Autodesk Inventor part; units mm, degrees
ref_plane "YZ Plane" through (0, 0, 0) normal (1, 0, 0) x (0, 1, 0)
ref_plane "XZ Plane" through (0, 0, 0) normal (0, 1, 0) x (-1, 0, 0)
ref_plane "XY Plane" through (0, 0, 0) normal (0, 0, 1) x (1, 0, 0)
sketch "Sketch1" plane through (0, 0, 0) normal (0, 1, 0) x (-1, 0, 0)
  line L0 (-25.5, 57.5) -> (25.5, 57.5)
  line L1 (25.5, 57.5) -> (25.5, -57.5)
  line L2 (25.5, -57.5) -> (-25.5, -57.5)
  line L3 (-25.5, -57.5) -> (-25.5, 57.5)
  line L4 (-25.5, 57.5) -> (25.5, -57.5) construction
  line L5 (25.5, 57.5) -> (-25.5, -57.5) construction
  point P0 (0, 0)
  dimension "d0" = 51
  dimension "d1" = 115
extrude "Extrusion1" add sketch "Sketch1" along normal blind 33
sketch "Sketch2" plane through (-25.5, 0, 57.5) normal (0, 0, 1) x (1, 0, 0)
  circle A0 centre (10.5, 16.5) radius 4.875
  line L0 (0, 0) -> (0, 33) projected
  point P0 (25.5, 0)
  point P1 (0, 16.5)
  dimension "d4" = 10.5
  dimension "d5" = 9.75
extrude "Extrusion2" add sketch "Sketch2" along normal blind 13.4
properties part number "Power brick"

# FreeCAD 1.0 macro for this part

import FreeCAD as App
import Part
import Sketcher

V = App.Vector

doc = App.newDocument("Part")
params = doc.addObject("Spreadsheet::Sheet", "Params")
for row, (alias, value) in enumerate([
    ("sketch1_width", "51 mm"),
    ("sketch1_height", "115 mm"),
    ("pad1_length", "33 mm"),
    ("sketch2_diameter", "9.75 mm"),
    ("pad2_length", "13.4 mm"),
], start=1):
    params.set(f"A{row}", alias)
    params.set(f"B{row}", "=" + value)
    params.setAlias(f"B{row}", alias)

body = doc.addObject("PartDesign::Body", "Body")

sketch1 = body.newObject("Sketcher::SketchObject", "Sketch")
sketch1.AttachmentSupport = (doc.getObject("XZ_Plane"), [""])
sketch1.MapMode = "FlatFace"
sketch1.addGeometry(Part.LineSegment(V(-26, 58, 0), V(26, 58, 0)), False)
sketch1.addGeometry(Part.LineSegment(V(26, 58, 0), V(26, -58, 0)), False)
sketch1.addGeometry(Part.LineSegment(V(26, -58, 0), V(-26, -58, 0)), False)
sketch1.addGeometry(Part.LineSegment(V(-26, -58, 0), V(-26, 58, 0)), False)
sketch1.addConstraint(Sketcher.Constraint("Coincident", 0, 2, 1, 1))
sketch1.addConstraint(Sketcher.Constraint("Coincident", 1, 2, 2, 1))
sketch1.addConstraint(Sketcher.Constraint("Coincident", 2, 2, 3, 1))
sketch1.addConstraint(Sketcher.Constraint("Coincident", 3, 2, 0, 1))
sketch1.addConstraint(Sketcher.Constraint("Horizontal", 0))
sketch1.addConstraint(Sketcher.Constraint("Vertical", 1))
sketch1.addConstraint(Sketcher.Constraint("Horizontal", 2))
sketch1.addConstraint(Sketcher.Constraint("Vertical", 3))
sketch1.addConstraint(Sketcher.Constraint("Symmetric", 0, 2, 2, 2, -1, 1))
sketch1.addConstraint(Sketcher.Constraint("DistanceX", 0, 1, 0, 2, 51.0))
sketch1.addConstraint(Sketcher.Constraint("DistanceY", 1, 2, 1, 1, 115.0))
sketch1.setExpression("Constraints[9]", "Params.sketch1_width")
sketch1.setExpression("Constraints[10]", "Params.sketch1_height")
pad1 = body.newObject("PartDesign::Pad", "Pad")
pad1.Profile = sketch1
pad1.setExpression("Length", "Params.pad1_length")
pad1.Reversed = True

sketch2 = body.newObject("Sketcher::SketchObject", "Sketch001")
sketch2.AttachmentSupport = (doc.getObject("XY_Plane"), [""])
sketch2.MapMode = "FlatFace"
sketch2.AttachmentOffset = App.Placement(V(0, 0, 57.5), App.Rotation())
sketch2.addGeometry(Part.Circle(V(-15, 16.5, 0), V(0, 0, 1), 4.9), False)
sketch2.addConstraint(Sketcher.Constraint("Diameter", 0, 9.75))
sketch2.addConstraint(Sketcher.Constraint("DistanceX", 0, 3, -1, 1, 15.0))
sketch2.addConstraint(Sketcher.Constraint("DistanceY", -1, 1, 0, 3, 16.5))
sketch2.setExpression("Constraints[0]", "Params.sketch2_diameter")
pad2 = body.newObject("PartDesign::Pad", "Pad001")
pad2.Profile = sketch2
pad2.setExpression("Length", "Params.pad2_length")

doc.recompute()
